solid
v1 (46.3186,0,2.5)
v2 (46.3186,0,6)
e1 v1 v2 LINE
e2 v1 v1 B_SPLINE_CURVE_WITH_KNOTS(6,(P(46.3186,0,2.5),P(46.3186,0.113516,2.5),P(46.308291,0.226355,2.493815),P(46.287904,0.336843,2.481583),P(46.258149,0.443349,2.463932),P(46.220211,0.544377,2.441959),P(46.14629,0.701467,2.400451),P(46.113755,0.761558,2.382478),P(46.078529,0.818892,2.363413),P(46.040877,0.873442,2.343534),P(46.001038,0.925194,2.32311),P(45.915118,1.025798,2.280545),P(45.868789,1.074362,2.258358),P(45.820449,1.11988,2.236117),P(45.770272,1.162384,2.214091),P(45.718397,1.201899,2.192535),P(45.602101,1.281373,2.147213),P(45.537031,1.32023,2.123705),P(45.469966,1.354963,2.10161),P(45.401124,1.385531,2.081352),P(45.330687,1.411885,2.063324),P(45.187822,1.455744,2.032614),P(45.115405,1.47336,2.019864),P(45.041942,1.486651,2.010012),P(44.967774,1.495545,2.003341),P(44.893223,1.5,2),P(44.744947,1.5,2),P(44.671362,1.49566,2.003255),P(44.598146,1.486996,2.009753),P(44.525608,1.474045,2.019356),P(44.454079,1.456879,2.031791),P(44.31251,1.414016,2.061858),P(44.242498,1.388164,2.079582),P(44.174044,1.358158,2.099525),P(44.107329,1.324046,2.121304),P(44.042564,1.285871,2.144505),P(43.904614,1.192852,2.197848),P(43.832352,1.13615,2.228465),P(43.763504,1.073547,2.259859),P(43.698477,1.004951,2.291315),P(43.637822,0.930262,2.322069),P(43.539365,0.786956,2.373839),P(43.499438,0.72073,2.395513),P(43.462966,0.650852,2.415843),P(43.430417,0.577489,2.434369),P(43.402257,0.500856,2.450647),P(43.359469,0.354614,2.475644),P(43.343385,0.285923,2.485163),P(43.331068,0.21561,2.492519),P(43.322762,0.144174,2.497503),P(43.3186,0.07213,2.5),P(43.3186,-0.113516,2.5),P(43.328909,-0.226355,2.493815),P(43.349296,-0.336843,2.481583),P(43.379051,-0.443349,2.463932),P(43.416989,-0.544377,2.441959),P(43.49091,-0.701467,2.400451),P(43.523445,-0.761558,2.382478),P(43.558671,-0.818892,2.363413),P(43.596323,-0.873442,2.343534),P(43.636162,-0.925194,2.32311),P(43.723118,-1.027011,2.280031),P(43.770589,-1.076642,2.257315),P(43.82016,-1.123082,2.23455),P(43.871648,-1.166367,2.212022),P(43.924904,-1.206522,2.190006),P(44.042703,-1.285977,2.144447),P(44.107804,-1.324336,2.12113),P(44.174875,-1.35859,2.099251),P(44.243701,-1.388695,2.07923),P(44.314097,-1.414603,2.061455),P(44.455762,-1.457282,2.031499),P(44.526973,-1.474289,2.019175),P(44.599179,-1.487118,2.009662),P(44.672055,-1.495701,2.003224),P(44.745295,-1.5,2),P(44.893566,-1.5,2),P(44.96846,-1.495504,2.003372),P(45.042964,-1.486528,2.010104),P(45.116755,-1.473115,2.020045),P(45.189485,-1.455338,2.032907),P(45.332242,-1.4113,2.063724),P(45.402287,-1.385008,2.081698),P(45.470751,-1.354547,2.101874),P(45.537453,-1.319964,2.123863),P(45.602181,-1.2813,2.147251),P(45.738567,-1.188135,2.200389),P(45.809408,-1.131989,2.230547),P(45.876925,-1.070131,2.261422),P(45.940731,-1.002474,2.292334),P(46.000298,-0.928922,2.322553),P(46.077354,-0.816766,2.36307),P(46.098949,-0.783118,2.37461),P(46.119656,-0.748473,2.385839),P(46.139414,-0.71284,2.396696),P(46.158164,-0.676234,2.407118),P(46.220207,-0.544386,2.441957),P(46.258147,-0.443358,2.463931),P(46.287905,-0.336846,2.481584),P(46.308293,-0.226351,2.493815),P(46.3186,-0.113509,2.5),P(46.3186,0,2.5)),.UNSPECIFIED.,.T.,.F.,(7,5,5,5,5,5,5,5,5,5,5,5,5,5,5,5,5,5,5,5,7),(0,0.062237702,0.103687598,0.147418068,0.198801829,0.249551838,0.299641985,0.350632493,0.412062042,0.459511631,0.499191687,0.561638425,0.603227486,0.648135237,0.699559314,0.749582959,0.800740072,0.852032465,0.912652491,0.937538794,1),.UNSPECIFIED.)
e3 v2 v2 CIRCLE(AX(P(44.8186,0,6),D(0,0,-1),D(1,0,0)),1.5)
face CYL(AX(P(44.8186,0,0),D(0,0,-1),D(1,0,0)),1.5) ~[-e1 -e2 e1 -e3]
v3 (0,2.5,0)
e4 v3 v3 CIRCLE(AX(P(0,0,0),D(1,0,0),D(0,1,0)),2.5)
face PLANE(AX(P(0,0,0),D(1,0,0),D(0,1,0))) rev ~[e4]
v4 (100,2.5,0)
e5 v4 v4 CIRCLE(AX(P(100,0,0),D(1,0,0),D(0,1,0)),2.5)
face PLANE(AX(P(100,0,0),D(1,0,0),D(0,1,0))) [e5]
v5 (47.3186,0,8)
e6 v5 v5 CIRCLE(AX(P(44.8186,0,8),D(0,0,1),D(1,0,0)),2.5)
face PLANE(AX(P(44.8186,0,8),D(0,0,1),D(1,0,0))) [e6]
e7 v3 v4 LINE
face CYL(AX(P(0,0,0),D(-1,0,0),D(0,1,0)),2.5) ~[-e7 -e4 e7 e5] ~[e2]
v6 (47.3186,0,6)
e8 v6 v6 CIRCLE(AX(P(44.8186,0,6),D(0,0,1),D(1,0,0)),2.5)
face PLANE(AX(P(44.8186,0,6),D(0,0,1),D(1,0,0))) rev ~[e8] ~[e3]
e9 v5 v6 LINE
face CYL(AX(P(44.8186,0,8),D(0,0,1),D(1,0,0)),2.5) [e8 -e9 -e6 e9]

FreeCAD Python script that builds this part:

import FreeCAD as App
import Part
import Sketcher

V = App.Vector

doc = App.newDocument("Part")
body = doc.addObject("PartDesign::Body", "Body")

# Sketch on YZ plane
sketch1 = body.newObject("Sketcher::SketchObject", "Sketch")
sketch1.AttachmentSupport = (doc.getObject("YZ_Plane"), [""])
sketch1.MapMode = "FlatFace"
sketch1.addGeometry(Part.Circle(V(0, 0, 0), V(0, 0, 1), 2.5), False)
sketch1.addConstraint([
    Sketcher.Constraint("Coincident", 0, 3, -1, 1),
    Sketcher.Constraint("Diameter", 0, 5.0),
])
pad1 = body.newObject("PartDesign::Pad", "Pad")
pad1.Profile = sketch1
pad1.Length = 100

# Sketch on XY plane
sketch2 = body.newObject("Sketcher::SketchObject", "Sketch001")
sketch2.AttachmentSupport = (doc.getObject("XY_Plane"), [""])
sketch2.MapMode = "FlatFace"
sketch2.addGeometry(Part.Circle(V(44.8, 0, 0), V(0, 0, 1), 1.5), False)
sketch2.addConstraint([
    Sketcher.Constraint("PointOnObject", 0, 3, -1),
    Sketcher.Constraint("Diameter", 0, 3.0),
    Sketcher.Constraint("DistanceX", -1, 1, 0, 3, 44.8186),
])
pad2 = body.newObject("PartDesign::Pad", "Pad001")
pad2.Profile = sketch2
pad2.Length = 8

# Sketch on XY plane
sketch3 = body.newObject("Sketcher::SketchObject", "Sketch002")
sketch3.AttachmentSupport = (doc.getObject("XY_Plane"), [""])
sketch3.MapMode = "FlatFace"
sketch3.AttachmentOffset = App.Placement(V(0, 0, 8), App.Rotation())
sketch3.addGeometry(Part.Circle(V(44.8, 0, 0), V(0, 0, 1), 2.5), False)
sketch3.addConstraint([
    Sketcher.Constraint("PointOnObject", 0, 3, -1),
    Sketcher.Constraint("Diameter", 0, 5.0),
    Sketcher.Constraint("DistanceX", -1, 1, 0, 3, 44.8186),
])
pad3 = body.newObject("PartDesign::Pad", "Pad002")
pad3.Profile = sketch3
pad3.Length = 2
pad3.Reversed = True

doc.recompute()
